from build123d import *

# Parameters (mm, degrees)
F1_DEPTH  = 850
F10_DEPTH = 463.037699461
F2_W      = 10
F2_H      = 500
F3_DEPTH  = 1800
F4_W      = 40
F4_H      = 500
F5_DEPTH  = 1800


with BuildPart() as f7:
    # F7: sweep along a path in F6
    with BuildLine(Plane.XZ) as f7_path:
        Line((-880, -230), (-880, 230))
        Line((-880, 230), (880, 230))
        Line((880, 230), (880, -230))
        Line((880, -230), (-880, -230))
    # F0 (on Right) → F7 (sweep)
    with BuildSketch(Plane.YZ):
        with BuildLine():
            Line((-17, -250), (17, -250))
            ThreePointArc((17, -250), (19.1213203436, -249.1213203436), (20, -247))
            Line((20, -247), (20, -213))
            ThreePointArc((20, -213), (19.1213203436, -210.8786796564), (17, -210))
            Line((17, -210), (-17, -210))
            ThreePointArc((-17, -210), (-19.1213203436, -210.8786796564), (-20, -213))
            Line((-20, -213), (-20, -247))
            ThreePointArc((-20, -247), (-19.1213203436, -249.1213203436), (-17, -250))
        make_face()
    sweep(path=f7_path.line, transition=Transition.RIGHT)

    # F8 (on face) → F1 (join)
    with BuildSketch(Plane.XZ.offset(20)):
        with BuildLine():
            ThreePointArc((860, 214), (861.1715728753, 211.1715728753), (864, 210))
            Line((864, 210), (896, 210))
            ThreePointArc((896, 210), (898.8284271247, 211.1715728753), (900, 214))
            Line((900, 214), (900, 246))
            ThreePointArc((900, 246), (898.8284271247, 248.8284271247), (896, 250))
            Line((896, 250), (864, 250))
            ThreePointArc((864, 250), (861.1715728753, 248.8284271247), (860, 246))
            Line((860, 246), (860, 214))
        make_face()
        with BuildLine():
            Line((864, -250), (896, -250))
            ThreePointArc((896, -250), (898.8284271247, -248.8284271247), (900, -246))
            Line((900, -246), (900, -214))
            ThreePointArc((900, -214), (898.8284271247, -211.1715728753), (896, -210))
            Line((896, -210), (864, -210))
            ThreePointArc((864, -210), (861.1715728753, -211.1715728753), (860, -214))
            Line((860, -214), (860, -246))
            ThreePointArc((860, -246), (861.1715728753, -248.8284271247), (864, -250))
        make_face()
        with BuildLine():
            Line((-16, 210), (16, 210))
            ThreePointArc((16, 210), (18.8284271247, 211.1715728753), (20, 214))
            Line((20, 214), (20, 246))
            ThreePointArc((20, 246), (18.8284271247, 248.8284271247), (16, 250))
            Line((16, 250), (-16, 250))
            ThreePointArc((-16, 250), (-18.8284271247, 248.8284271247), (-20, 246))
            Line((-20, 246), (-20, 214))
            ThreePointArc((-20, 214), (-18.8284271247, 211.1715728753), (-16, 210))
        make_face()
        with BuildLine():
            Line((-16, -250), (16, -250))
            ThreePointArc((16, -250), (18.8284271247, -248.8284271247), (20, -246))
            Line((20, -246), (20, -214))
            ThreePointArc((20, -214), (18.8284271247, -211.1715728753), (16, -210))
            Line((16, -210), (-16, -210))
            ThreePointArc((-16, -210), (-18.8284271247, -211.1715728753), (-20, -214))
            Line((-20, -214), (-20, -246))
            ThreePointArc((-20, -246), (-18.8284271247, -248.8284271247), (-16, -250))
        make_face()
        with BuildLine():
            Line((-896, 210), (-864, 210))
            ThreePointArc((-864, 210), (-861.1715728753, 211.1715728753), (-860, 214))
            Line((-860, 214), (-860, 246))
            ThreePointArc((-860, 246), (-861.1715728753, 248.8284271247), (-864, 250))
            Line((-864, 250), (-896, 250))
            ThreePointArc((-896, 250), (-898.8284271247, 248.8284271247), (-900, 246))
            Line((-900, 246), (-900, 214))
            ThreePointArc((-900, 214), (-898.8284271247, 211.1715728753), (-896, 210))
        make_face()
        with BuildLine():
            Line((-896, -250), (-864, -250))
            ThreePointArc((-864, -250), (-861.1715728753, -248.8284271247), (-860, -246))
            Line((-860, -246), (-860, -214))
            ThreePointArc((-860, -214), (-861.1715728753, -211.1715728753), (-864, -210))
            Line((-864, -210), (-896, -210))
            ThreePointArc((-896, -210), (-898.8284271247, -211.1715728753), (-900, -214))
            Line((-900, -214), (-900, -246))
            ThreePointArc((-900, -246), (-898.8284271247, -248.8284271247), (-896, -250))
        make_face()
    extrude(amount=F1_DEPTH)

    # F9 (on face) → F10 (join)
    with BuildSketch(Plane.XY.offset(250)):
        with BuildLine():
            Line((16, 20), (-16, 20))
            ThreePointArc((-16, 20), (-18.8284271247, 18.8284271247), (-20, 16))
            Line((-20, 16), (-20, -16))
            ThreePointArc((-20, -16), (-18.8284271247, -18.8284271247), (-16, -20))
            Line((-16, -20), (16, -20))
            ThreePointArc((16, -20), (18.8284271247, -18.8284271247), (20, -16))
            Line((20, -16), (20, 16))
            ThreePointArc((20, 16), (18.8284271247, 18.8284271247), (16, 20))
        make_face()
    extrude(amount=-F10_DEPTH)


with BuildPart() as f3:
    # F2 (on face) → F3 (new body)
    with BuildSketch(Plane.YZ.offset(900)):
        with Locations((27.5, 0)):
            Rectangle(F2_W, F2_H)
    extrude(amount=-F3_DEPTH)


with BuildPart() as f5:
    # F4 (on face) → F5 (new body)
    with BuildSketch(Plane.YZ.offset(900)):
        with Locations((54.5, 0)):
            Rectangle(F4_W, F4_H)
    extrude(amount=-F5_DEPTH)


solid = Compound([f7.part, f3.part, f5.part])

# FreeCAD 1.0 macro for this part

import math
import FreeCAD as App
import Part
import Sketcher


def add_polygon(sketch, points):
    """Adds a closed chain of lines whose ends are joined by coincident constraints."""
    first, n = sketch.GeometryCount, len(points)
    for a, b in zip(points, points[1:] + points[:1]):
        sketch.addGeometry(Part.LineSegment(App.Vector(*a, 0), App.Vector(*b, 0)), False)
    for i in range(n):
        sketch.addConstraint(Sketcher.Constraint("Coincident", first + i, 2, first + (i + 1) % n, 1))

doc = App.newDocument("Part")
body = doc.addObject("PartDesign::Body", "Body")

# Sketch on YZ plane
sketch1 = body.newObject("Sketcher::SketchObject", "Sketch")
sketch1.AttachmentSupport = (doc.getObject("YZ_Plane"), [""])
sketch1.MapMode = "FlatFace"
sketch1.addGeometry([
    Part.LineSegment(App.Vector(-17, -250, 0), App.Vector(17, -250, 0)),  # 0
    Part.ArcOfCircle(Part.Circle(App.Vector(17, -247, 0), App.Vector(0, 0, 1), 3), math.radians(-90), math.radians(0)),  # 1
    Part.LineSegment(App.Vector(20, -247, 0), App.Vector(20, -213, 0)),  # 2
    Part.ArcOfCircle(Part.Circle(App.Vector(17, -213, 0), App.Vector(0, 0, 1), 3), math.radians(0), math.radians(90)),  # 3
    Part.LineSegment(App.Vector(17, -210, 0), App.Vector(-17, -210, 0)),  # 4
    Part.ArcOfCircle(Part.Circle(App.Vector(-17, -213, 0), App.Vector(0, 0, 1), 3), math.radians(90), math.radians(180)),  # 5
    Part.LineSegment(App.Vector(-20, -213, 0), App.Vector(-20, -247, 0)),  # 6
    Part.ArcOfCircle(Part.Circle(App.Vector(-17, -247, 0), App.Vector(0, 0, 1), 3), math.radians(180), math.radians(270)),  # 7
], False)
sketch1.addConstraint([
    Sketcher.Constraint("Tangent", 0, 2, 1, 1),
    Sketcher.Constraint("Tangent", 1, 2, 2, 1),
    Sketcher.Constraint("Tangent", 2, 2, 3, 1),
    Sketcher.Constraint("Tangent", 3, 2, 4, 1),
    Sketcher.Constraint("Tangent", 4, 2, 5, 1),
    Sketcher.Constraint("Tangent", 5, 2, 6, 1),
    Sketcher.Constraint("Tangent", 6, 2, 7, 1),
    Sketcher.Constraint("Tangent", 7, 2, 0, 1),
    Sketcher.Constraint("Horizontal", 0),
    Sketcher.Constraint("Vertical", 2),
    Sketcher.Constraint("Horizontal", 4),
    Sketcher.Constraint("Vertical", 6),
    Sketcher.Constraint("Equal", 1, 3),
    Sketcher.Constraint("Equal", 3, 5),
    Sketcher.Constraint("Equal", 5, 7),
    Sketcher.Constraint("Equal", 4, 2),
    Sketcher.Constraint("Radius", 1, 3.0),
    Sketcher.Constraint("DistanceX", 0, 1, 0, 2, 34.0),
    Sketcher.Constraint("DistanceX", -1, 1, 1, 3, 17.0),
    Sketcher.Constraint("DistanceY", 1, 3, -1, 1, 247.0),
])

# Sketch on XZ plane
sketch2 = body.newObject("Sketcher::SketchObject", "Sketch001")
sketch2.AttachmentSupport = (doc.getObject("XZ_Plane"), [""])
sketch2.MapMode = "FlatFace"
add_polygon(sketch2, [(-880, -230), (-880, 230), (880, 230), (880, -230)])  # lines 0-3
sketch2.addConstraint([
    Sketcher.Constraint("Vertical", 0),
    Sketcher.Constraint("Horizontal", 1),
    Sketcher.Constraint("Vertical", 2),
    Sketcher.Constraint("Horizontal", 3),
    Sketcher.Constraint("Symmetric", 0, 2, 2, 2, -1, 1),
    Sketcher.Constraint("DistanceX", 1, 1, 1, 2, 1760.0),
    Sketcher.Constraint("DistanceY", 0, 1, 0, 2, 460.0),
])
doc.recompute()

additivepipe = body.newObject("PartDesign::AdditivePipe", "AdditivePipe")
additivepipe.Profile = sketch1
additivepipe.Spine = (sketch2, ["Edge1", "Edge2", "Edge3", "Edge4"])
additivepipe.Transition = "Right corner"

# Sketch on XZ plane
sketch3 = body.newObject("Sketcher::SketchObject", "Sketch002")
sketch3.AttachmentSupport = (doc.getObject("XZ_Plane"), [""])
sketch3.MapMode = "FlatFace"
sketch3.AttachmentOffset = App.Placement(App.Vector(0, 0, 20), App.Rotation())
sketch3.addGeometry([
    Part.ArcOfCircle(Part.Circle(App.Vector(864, 214, 0), App.Vector(0, 0, 1), 4), math.radians(180), math.radians(270)),  # 0
    Part.LineSegment(App.Vector(864, 210, 0), App.Vector(896, 210, 0)),  # 1
    Part.ArcOfCircle(Part.Circle(App.Vector(896, 214, 0), App.Vector(0, 0, 1), 4), math.radians(-90), math.radians(0)),  # 2
    Part.LineSegment(App.Vector(900, 214, 0), App.Vector(900, 246, 0)),  # 3
    Part.ArcOfCircle(Part.Circle(App.Vector(896, 246, 0), App.Vector(0, 0, 1), 4), math.radians(0), math.radians(90)),  # 4
    Part.LineSegment(App.Vector(896, 250, 0), App.Vector(864, 250, 0)),  # 5
    Part.ArcOfCircle(Part.Circle(App.Vector(864, 246, 0), App.Vector(0, 0, 1), 4), math.radians(90), math.radians(180)),  # 6
    Part.LineSegment(App.Vector(860, 246, 0), App.Vector(860, 214, 0)),  # 7
    Part.LineSegment(App.Vector(864, -250, 0), App.Vector(896, -250, 0)),  # 8
    Part.ArcOfCircle(Part.Circle(App.Vector(896, -246, 0), App.Vector(0, 0, 1), 4), math.radians(-90), math.radians(0)),  # 9
    Part.LineSegment(App.Vector(900, -246, 0), App.Vector(900, -214, 0)),  # 10
    Part.ArcOfCircle(Part.Circle(App.Vector(896, -214, 0), App.Vector(0, 0, 1), 4), math.radians(0), math.radians(90)),  # 11
    Part.LineSegment(App.Vector(896, -210, 0), App.Vector(864, -210, 0)),  # 12
    Part.ArcOfCircle(Part.Circle(App.Vector(864, -214, 0), App.Vector(0, 0, 1), 4), math.radians(90), math.radians(180)),  # 13
    Part.LineSegment(App.Vector(860, -214, 0), App.Vector(860, -246, 0)),  # 14
    Part.ArcOfCircle(Part.Circle(App.Vector(864, -246, 0), App.Vector(0, 0, 1), 4), math.radians(180), math.radians(270)),  # 15
    Part.LineSegment(App.Vector(-16, 210, 0), App.Vector(16, 210, 0)),  # 16
    Part.ArcOfCircle(Part.Circle(App.Vector(16, 214, 0), App.Vector(0, 0, 1), 4), math.radians(-90), math.radians(0)),  # 17
    Part.LineSegment(App.Vector(20, 214, 0), App.Vector(20, 246, 0)),  # 18
    Part.ArcOfCircle(Part.Circle(App.Vector(16, 246, 0), App.Vector(0, 0, 1), 4), math.radians(0), math.radians(90)),  # 19
    Part.LineSegment(App.Vector(16, 250, 0), App.Vector(-16, 250, 0)),  # 20
    Part.ArcOfCircle(Part.Circle(App.Vector(-16, 246, 0), App.Vector(0, 0, 1), 4), math.radians(90), math.radians(180)),  # 21
    Part.LineSegment(App.Vector(-20, 246, 0), App.Vector(-20, 214, 0)),  # 22
    Part.ArcOfCircle(Part.Circle(App.Vector(-16, 214, 0), App.Vector(0, 0, 1), 4), math.radians(180), math.radians(270)),  # 23
    Part.LineSegment(App.Vector(-16, -250, 0), App.Vector(16, -250, 0)),  # 24
    Part.ArcOfCircle(Part.Circle(App.Vector(16, -246, 0), App.Vector(0, 0, 1), 4), math.radians(-90), math.radians(0)),  # 25
    Part.LineSegment(App.Vector(20, -246, 0), App.Vector(20, -214, 0)),  # 26
    Part.ArcOfCircle(Part.Circle(App.Vector(16, -214, 0), App.Vector(0, 0, 1), 4), math.radians(0), math.radians(90)),  # 27
    Part.LineSegment(App.Vector(16, -210, 0), App.Vector(-16, -210, 0)),  # 28
    Part.ArcOfCircle(Part.Circle(App.Vector(-16, -214, 0), App.Vector(0, 0, 1), 4), math.radians(90), math.radians(180)),  # 29
    Part.LineSegment(App.Vector(-20, -214, 0), App.Vector(-20, -246, 0)),  # 30
    Part.ArcOfCircle(Part.Circle(App.Vector(-16, -246, 0), App.Vector(0, 0, 1), 4), math.radians(180), math.radians(270)),  # 31
    Part.LineSegment(App.Vector(-896, 210, 0), App.Vector(-864, 210, 0)),  # 32
    Part.ArcOfCircle(Part.Circle(App.Vector(-864, 214, 0), App.Vector(0, 0, 1), 4), math.radians(-90), math.radians(0)),  # 33
    Part.LineSegment(App.Vector(-860, 214, 0), App.Vector(-860, 246, 0)),  # 34
    Part.ArcOfCircle(Part.Circle(App.Vector(-864, 246, 0), App.Vector(0, 0, 1), 4), math.radians(0), math.radians(90)),  # 35
    Part.LineSegment(App.Vector(-864, 250, 0), App.Vector(-896, 250, 0)),  # 36
    Part.ArcOfCircle(Part.Circle(App.Vector(-896, 246, 0), App.Vector(0, 0, 1), 4), math.radians(90), math.radians(180)),  # 37
    Part.LineSegment(App.Vector(-900, 246, 0), App.Vector(-900, 214, 0)),  # 38
    Part.ArcOfCircle(Part.Circle(App.Vector(-896, 214, 0), App.Vector(0, 0, 1), 4), math.radians(180), math.radians(270)),  # 39
    Part.LineSegment(App.Vector(-896, -250, 0), App.Vector(-864, -250, 0)),  # 40
    Part.ArcOfCircle(Part.Circle(App.Vector(-864, -246, 0), App.Vector(0, 0, 1), 4), math.radians(-90), math.radians(0)),  # 41
    Part.LineSegment(App.Vector(-860, -246, 0), App.Vector(-860, -214, 0)),  # 42
    Part.ArcOfCircle(Part.Circle(App.Vector(-864, -214, 0), App.Vector(0, 0, 1), 4), math.radians(0), math.radians(90)),  # 43
    Part.LineSegment(App.Vector(-864, -210, 0), App.Vector(-896, -210, 0)),  # 44
    Part.ArcOfCircle(Part.Circle(App.Vector(-896, -214, 0), App.Vector(0, 0, 1), 4), math.radians(90), math.radians(180)),  # 45
    Part.LineSegment(App.Vector(-900, -214, 0), App.Vector(-900, -246, 0)),  # 46
    Part.ArcOfCircle(Part.Circle(App.Vector(-896, -246, 0), App.Vector(0, 0, 1), 4), math.radians(180), math.radians(270)),  # 47
], False)
sketch3.addConstraint([
    Sketcher.Constraint("Tangent", 0, 2, 1, 1),
    Sketcher.Constraint("Tangent", 1, 2, 2, 1),
    Sketcher.Constraint("Tangent", 2, 2, 3, 1),
    Sketcher.Constraint("Tangent", 3, 2, 4, 1),
    Sketcher.Constraint("Tangent", 4, 2, 5, 1),
    Sketcher.Constraint("Tangent", 5, 2, 6, 1),
    Sketcher.Constraint("Tangent", 6, 2, 7, 1),
    Sketcher.Constraint("Tangent", 7, 2, 0, 1),
    Sketcher.Constraint("Tangent", 8, 2, 9, 1),
    Sketcher.Constraint("Tangent", 9, 2, 10, 1),
    Sketcher.Constraint("Tangent", 10, 2, 11, 1),
    Sketcher.Constraint("Tangent", 11, 2, 12, 1),
    Sketcher.Constraint("Tangent", 12, 2, 13, 1),
    Sketcher.Constraint("Tangent", 13, 2, 14, 1),
    Sketcher.Constraint("Tangent", 14, 2, 15, 1),
    Sketcher.Constraint("Tangent", 15, 2, 8, 1),
    Sketcher.Constraint("Tangent", 16, 2, 17, 1),
    Sketcher.Constraint("Tangent", 17, 2, 18, 1),
    Sketcher.Constraint("Tangent", 18, 2, 19, 1),
    Sketcher.Constraint("Tangent", 19, 2, 20, 1),
    Sketcher.Constraint("Tangent", 20, 2, 21, 1),
    Sketcher.Constraint("Tangent", 21, 2, 22, 1),
    Sketcher.Constraint("Tangent", 22, 2, 23, 1),
    Sketcher.Constraint("Tangent", 23, 2, 16, 1),
    Sketcher.Constraint("Tangent", 24, 2, 25, 1),
    Sketcher.Constraint("Tangent", 25, 2, 26, 1),
    Sketcher.Constraint("Tangent", 26, 2, 27, 1),
    Sketcher.Constraint("Tangent", 27, 2, 28, 1),
    Sketcher.Constraint("Tangent", 28, 2, 29, 1),
    Sketcher.Constraint("Tangent", 29, 2, 30, 1),
    Sketcher.Constraint("Tangent", 30, 2, 31, 1),
    Sketcher.Constraint("Tangent", 31, 2, 24, 1),
    Sketcher.Constraint("Tangent", 32, 2, 33, 1),
    Sketcher.Constraint("Tangent", 33, 2, 34, 1),
    Sketcher.Constraint("Tangent", 34, 2, 35, 1),
    Sketcher.Constraint("Tangent", 35, 2, 36, 1),
    Sketcher.Constraint("Tangent", 36, 2, 37, 1),
    Sketcher.Constraint("Tangent", 37, 2, 38, 1),
    Sketcher.Constraint("Tangent", 38, 2, 39, 1),
    Sketcher.Constraint("Tangent", 39, 2, 32, 1),
    Sketcher.Constraint("Tangent", 40, 2, 41, 1),
    Sketcher.Constraint("Tangent", 41, 2, 42, 1),
    Sketcher.Constraint("Tangent", 42, 2, 43, 1),
    Sketcher.Constraint("Tangent", 43, 2, 44, 1),
    Sketcher.Constraint("Tangent", 44, 2, 45, 1),
    Sketcher.Constraint("Tangent", 45, 2, 46, 1),
    Sketcher.Constraint("Tangent", 46, 2, 47, 1),
    Sketcher.Constraint("Tangent", 47, 2, 40, 1),
    Sketcher.Constraint("Horizontal", 1),
    Sketcher.Constraint("Vertical", 3),
    Sketcher.Constraint("Horizontal", 5),
    Sketcher.Constraint("Vertical", 7),
    Sketcher.Constraint("Horizontal", 8),
    Sketcher.Constraint("Vertical", 10),
    Sketcher.Constraint("Horizontal", 12),
    Sketcher.Constraint("Vertical", 14),
    Sketcher.Constraint("Horizontal", 16),
    Sketcher.Constraint("Vertical", 18),
    Sketcher.Constraint("Horizontal", 20),
    Sketcher.Constraint("Vertical", 22),
    Sketcher.Constraint("Horizontal", 24),
    Sketcher.Constraint("Vertical", 26),
    Sketcher.Constraint("Horizontal", 28),
    Sketcher.Constraint("Vertical", 30),
    Sketcher.Constraint("Horizontal", 32),
    Sketcher.Constraint("Vertical", 34),
    Sketcher.Constraint("Horizontal", 36),
    Sketcher.Constraint("Vertical", 38),
    Sketcher.Constraint("Horizontal", 40),
    Sketcher.Constraint("Vertical", 42),
    Sketcher.Constraint("Horizontal", 44),
    Sketcher.Constraint("Vertical", 46),
    Sketcher.Constraint("Equal", 0, 2),
    Sketcher.Constraint("Equal", 2, 4),
    Sketcher.Constraint("Equal", 4, 6),
    Sketcher.Constraint("Equal", 6, 9),
    Sketcher.Constraint("Equal", 9, 11),
    Sketcher.Constraint("Equal", 11, 13),
    Sketcher.Constraint("Equal", 13, 15),
    Sketcher.Constraint("Equal", 15, 17),
    Sketcher.Constraint("Equal", 17, 19),
    Sketcher.Constraint("Equal", 19, 21),
    Sketcher.Constraint("Equal", 21, 23),
    Sketcher.Constraint("Equal", 23, 25),
    Sketcher.Constraint("Equal", 25, 27),
    Sketcher.Constraint("Equal", 27, 29),
    Sketcher.Constraint("Equal", 29, 31),
    Sketcher.Constraint("Equal", 31, 33),
    Sketcher.Constraint("Equal", 33, 35),
    Sketcher.Constraint("Equal", 35, 37),
    Sketcher.Constraint("Equal", 37, 39),
    Sketcher.Constraint("Equal", 39, 41),
    Sketcher.Constraint("Equal", 41, 43),
    Sketcher.Constraint("Equal", 43, 45),
    Sketcher.Constraint("Equal", 45, 47),
    Sketcher.Constraint("Symmetric", 21, 3, 25, 3, -1, 1),
    Sketcher.Constraint("Symmetric", 17, 3, 29, 3, -1, 1),
    Sketcher.Constraint("Symmetric", 13, 3, 33, 3, -1, 1),
    Sketcher.Constraint("Symmetric", 9, 3, 37, 3, -1, 1),
    Sketcher.Constraint("Symmetric", 6, 3, 41, 3, -1, 1),
    Sketcher.Constraint("Symmetric", 2, 3, 45, 3, -1, 1),
    Sketcher.Constraint("Symmetric", 0, 3, 33, 3, -2),
    Sketcher.Constraint("Symmetric", 4, 3, 37, 3, -2),
    Sketcher.Constraint("Horizontal", 2, 3, 17, 3),
    Sketcher.Constraint("Horizontal", 6, 3, 19, 3),
    Sketcher.Constraint("Vertical", 19, 3, 25, 3),
    Sketcher.Constraint("Equal", 12, 16),
    Sketcher.Constraint("Equal", 44, 3),
    Sketcher.Constraint("Radius", 0, 4.0),
    Sketcher.Constraint("DistanceX", 1, 1, 1, 2, 32.0),
    Sketcher.Constraint("DistanceX", -1, 1, 0, 3, 864.0),
    Sketcher.Constraint("DistanceY", -1, 1, 0, 3, 214.0),
])
pad1 = body.newObject("PartDesign::Pad", "Pad")
pad1.Profile = sketch3
pad1.Length = 850

# Sketch on XY plane
sketch4 = body.newObject("Sketcher::SketchObject", "Sketch003")
sketch4.AttachmentSupport = (doc.getObject("XY_Plane"), [""])
sketch4.MapMode = "FlatFace"
sketch4.AttachmentOffset = App.Placement(App.Vector(0, 0, 250), App.Rotation())
sketch4.addGeometry([
    Part.LineSegment(App.Vector(16, 20, 0), App.Vector(-16, 20, 0)),  # 0
    Part.ArcOfCircle(Part.Circle(App.Vector(-16, 16, 0), App.Vector(0, 0, 1), 4), math.radians(90), math.radians(180)),  # 1
    Part.LineSegment(App.Vector(-20, 16, 0), App.Vector(-20, -16, 0)),  # 2
    Part.ArcOfCircle(Part.Circle(App.Vector(-16, -16, 0), App.Vector(0, 0, 1), 4), math.radians(180), math.radians(270)),  # 3
    Part.LineSegment(App.Vector(-16, -20, 0), App.Vector(16, -20, 0)),  # 4
    Part.ArcOfCircle(Part.Circle(App.Vector(16, -16, 0), App.Vector(0, 0, 1), 4), math.radians(-90), math.radians(0)),  # 5
    Part.LineSegment(App.Vector(20, -16, 0), App.Vector(20, 16, 0)),  # 6
    Part.ArcOfCircle(Part.Circle(App.Vector(16, 16, 0), App.Vector(0, 0, 1), 4), math.radians(0), math.radians(90)),  # 7
], False)
sketch4.addConstraint([
    Sketcher.Constraint("Tangent", 0, 2, 1, 1),
    Sketcher.Constraint("Tangent", 1, 2, 2, 1),
    Sketcher.Constraint("Tangent", 2, 2, 3, 1),
    Sketcher.Constraint("Tangent", 3, 2, 4, 1),
    Sketcher.Constraint("Tangent", 4, 2, 5, 1),
    Sketcher.Constraint("Tangent", 5, 2, 6, 1),
    Sketcher.Constraint("Tangent", 6, 2, 7, 1),
    Sketcher.Constraint("Tangent", 7, 2, 0, 1),
    Sketcher.Constraint("Horizontal", 0),
    Sketcher.Constraint("Vertical", 2),
    Sketcher.Constraint("Horizontal", 4),
    Sketcher.Constraint("Vertical", 6),
    Sketcher.Constraint("Equal", 1, 3),
    Sketcher.Constraint("Equal", 3, 5),
    Sketcher.Constraint("Equal", 5, 7),
    Sketcher.Constraint("Symmetric", 1, 3, 5, 3, -1, 1),
    Sketcher.Constraint("Equal", 4, 2),
    Sketcher.Constraint("Radius", 1, 4.0),
    Sketcher.Constraint("DistanceX", 0, 2, 0, 1, 32.0),
])
pad2 = body.newObject("PartDesign::Pad", "Pad001")
pad2.Profile = sketch4
pad2.Length = 463.037699
pad2.Reversed = True
body2 = doc.addObject("PartDesign::Body", "Body001")

# Sketch on YZ plane
sketch5 = body2.newObject("Sketcher::SketchObject", "Sketch004")
sketch5.AttachmentSupport = (doc.getObject("YZ_Plane001"), [""])
sketch5.MapMode = "FlatFace"
sketch5.AttachmentOffset = App.Placement(App.Vector(0, 0, 900), App.Rotation())
add_polygon(sketch5, [(22.5, 250), (22.5, -250), (32.5, -250), (32.5, 250)])  # lines 0-3
sketch5.addConstraint([
    Sketcher.Constraint("Vertical", 0),
    Sketcher.Constraint("Horizontal", 1),
    Sketcher.Constraint("Vertical", 2),
    Sketcher.Constraint("Horizontal", 3),
    Sketcher.Constraint("DistanceX", 1, 1, 1, 2, 10.0),
    Sketcher.Constraint("DistanceY", 0, 2, 0, 1, 500.0),
    Sketcher.Constraint("DistanceY", 0, 2, -1, 1, 250.0),
    Sketcher.Constraint("DistanceX", -1, 1, 0, 2, 22.5),
])
pad3 = body2.newObject("PartDesign::Pad", "Pad002")
pad3.Profile = sketch5
pad3.Length = 1800
pad3.Reversed = True
body3 = doc.addObject("PartDesign::Body", "Body002")

# Sketch on YZ plane
sketch6 = body3.newObject("Sketcher::SketchObject", "Sketch005")
sketch6.AttachmentSupport = (doc.getObject("YZ_Plane002"), [""])
sketch6.MapMode = "FlatFace"
sketch6.AttachmentOffset = App.Placement(App.Vector(0, 0, 900), App.Rotation())
add_polygon(sketch6, [(34.5, 250), (34.5, -250), (74.5, -250), (74.5, 250)])  # lines 0-3
sketch6.addConstraint([
    Sketcher.Constraint("Vertical", 0),
    Sketcher.Constraint("Horizontal", 1),
    Sketcher.Constraint("Vertical", 2),
    Sketcher.Constraint("Horizontal", 3),
    Sketcher.Constraint("DistanceX", 1, 1, 1, 2, 40.0),
    Sketcher.Constraint("DistanceY", 0, 2, 0, 1, 500.0),
    Sketcher.Constraint("DistanceY", 0, 2, -1, 1, 250.0),
    Sketcher.Constraint("DistanceX", -1, 1, 0, 2, 34.5),
])
pad4 = body3.newObject("PartDesign::Pad", "Pad003")
pad4.Profile = sketch6
pad4.Length = 1800
pad4.Reversed = True

doc.recompute()
